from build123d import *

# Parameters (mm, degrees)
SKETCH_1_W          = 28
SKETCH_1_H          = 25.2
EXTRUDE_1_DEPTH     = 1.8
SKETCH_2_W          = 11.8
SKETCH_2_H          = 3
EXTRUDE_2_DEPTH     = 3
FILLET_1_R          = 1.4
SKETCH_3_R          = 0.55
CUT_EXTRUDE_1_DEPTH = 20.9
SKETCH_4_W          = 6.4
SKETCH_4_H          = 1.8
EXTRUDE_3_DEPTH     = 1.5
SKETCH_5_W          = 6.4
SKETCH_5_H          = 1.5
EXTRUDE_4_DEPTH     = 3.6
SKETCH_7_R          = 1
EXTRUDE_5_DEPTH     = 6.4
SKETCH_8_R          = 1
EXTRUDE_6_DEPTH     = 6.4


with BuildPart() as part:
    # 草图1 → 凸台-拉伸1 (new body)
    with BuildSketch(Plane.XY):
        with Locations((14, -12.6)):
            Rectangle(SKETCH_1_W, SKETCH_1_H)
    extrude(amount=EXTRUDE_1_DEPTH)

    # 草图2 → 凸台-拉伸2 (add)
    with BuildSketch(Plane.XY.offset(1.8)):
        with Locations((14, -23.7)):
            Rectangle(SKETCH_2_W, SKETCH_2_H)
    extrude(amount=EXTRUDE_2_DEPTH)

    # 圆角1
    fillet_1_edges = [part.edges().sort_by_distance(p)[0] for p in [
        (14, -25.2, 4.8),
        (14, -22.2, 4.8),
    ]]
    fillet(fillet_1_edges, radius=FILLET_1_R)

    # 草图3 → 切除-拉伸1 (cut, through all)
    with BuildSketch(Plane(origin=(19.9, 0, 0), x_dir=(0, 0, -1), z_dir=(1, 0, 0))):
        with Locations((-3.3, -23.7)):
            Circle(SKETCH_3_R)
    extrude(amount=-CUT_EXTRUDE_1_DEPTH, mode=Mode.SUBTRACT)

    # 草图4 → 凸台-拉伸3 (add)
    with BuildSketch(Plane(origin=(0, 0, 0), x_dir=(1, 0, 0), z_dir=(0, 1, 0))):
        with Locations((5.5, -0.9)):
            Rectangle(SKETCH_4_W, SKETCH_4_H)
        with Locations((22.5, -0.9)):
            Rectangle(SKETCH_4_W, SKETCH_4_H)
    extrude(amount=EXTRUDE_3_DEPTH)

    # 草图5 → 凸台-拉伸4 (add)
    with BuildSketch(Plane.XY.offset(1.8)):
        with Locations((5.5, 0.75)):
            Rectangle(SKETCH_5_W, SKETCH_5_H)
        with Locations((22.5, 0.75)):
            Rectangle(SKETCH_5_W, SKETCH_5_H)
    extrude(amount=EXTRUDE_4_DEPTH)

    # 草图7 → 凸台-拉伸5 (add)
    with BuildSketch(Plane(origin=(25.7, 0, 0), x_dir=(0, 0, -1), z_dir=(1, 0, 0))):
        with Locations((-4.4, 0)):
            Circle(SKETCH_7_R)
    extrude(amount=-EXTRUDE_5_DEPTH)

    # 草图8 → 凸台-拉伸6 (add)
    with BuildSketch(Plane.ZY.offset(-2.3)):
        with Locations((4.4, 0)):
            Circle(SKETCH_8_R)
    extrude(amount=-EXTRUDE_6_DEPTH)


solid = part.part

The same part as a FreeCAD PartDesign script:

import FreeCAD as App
import Part
import Sketcher


def edges_at(feature, points):
    """Names of the edges that pass closest to the given points."""
    edges = feature.Shape.Edges
    near = lambda p: min(range(len(edges)), key=lambda i: edges[i].distToShape(Part.Vertex(*p))[0])
    return sorted({f"Edge{near(p) + 1}" for p in points})


def add_polygon(sketch, points):
    """Adds a closed chain of lines whose ends are joined by coincident constraints."""
    first, n = sketch.GeometryCount, len(points)
    for a, b in zip(points, points[1:] + points[:1]):
        sketch.addGeometry(Part.LineSegment(App.Vector(*a, 0), App.Vector(*b, 0)), False)
    for i in range(n):
        sketch.addConstraint(Sketcher.Constraint("Coincident", first + i, 2, first + (i + 1) % n, 1))

doc = App.newDocument("Part")
params = doc.addObject("Spreadsheet::Sheet", "Params")
for row, (alias, value) in enumerate([
    ("sketch1_width", "28 mm"),
    ("sketch1_height", "25.2 mm"),
    ("pad1_length", "1.8 mm"),
    ("sketch2_height", "3 mm"),
    ("sketch2_width", "11.8 mm"),
    ("pad2_length", "3 mm"),
    ("fillet_radius", "1.4 mm"),
    ("sketch3_diameter", "1.1 mm"),
    ("sketch4_width", "6.4 mm"),
    ("sketch4_height", "1.8 mm"),
    ("pad3_length", "1.5 mm"),
    ("sketch5_width", "6.4 mm"),
    ("sketch5_height", "1.5 mm"),
    ("pad4_length", "3.6 mm"),
    ("sketch6_diameter", "2 mm"),
    ("pad5_length", "6.4 mm"),
    ("sketch7_diameter", "2 mm"),
    ("pad6_length", "6.4 mm"),
], start=1):
    params.set(f"A{row}", alias)
    params.set(f"B{row}", "=" + value)
    params.setAlias(f"B{row}", alias)

body = doc.addObject("PartDesign::Body", "Body")

# Sketch on XY plane
sketch1 = doc.addObject("Sketcher::SketchObject", "Sketch")
body.addObject(sketch1)
sketch1.AttachmentSupport = (doc.XY_Plane, [""])
sketch1.MapMode = "FlatFace"
add_polygon(sketch1, [(0, 0), (0, -25), (28, -25), (28, 0)])  # lines 0-3
sketch1.addConstraint([
    Sketcher.Constraint("Vertical", 0),
    Sketcher.Constraint("Horizontal", 1),
    Sketcher.Constraint("Vertical", 2),
    Sketcher.Constraint("Horizontal", 3),
    Sketcher.Constraint("Coincident", 3, 2, -1, 1),
    Sketcher.Constraint("DistanceX", 1, 1, 1, 2, 28.0),
    Sketcher.Constraint("DistanceY", 0, 2, 0, 1, 25.2),
])
sketch1.setExpression("Constraints[9]", "Params.sketch1_width")
sketch1.setExpression("Constraints[10]", "Params.sketch1_height")
pad1 = doc.addObject("PartDesign::Pad", "Pad")
body.addObject(pad1)
pad1.Profile = sketch1
pad1.setExpression("Length", "Params.pad1_length")

# Sketch on XY plane
sketch2 = doc.addObject("Sketcher::SketchObject", "Sketch001")
body.addObject(sketch2)
sketch2.AttachmentSupport = (doc.XY_Plane, [""])
sketch2.MapMode = "FlatFace"
sketch2.AttachmentOffset = App.Placement(App.Vector(0, 0, 1.8), App.Rotation())
add_polygon(sketch2, [(8.1, -22.2), (8.1, -25.2), (19.9, -25.2), (19.9, -22.2)])  # lines 0-3
sketch2.addConstraint([
    Sketcher.Constraint("Vertical", 0),
    Sketcher.Constraint("Horizontal", 1),
    Sketcher.Constraint("Vertical", 2),
    Sketcher.Constraint("Horizontal", 3),
    Sketcher.Constraint("DistanceY", 0, 2, 0, 1, 3.0),
    Sketcher.Constraint("DistanceX", 1, 1, 1, 2, 11.8),
    Sketcher.Constraint("DistanceX", -1, 1, 0, 2, 8.1),
    Sketcher.Constraint("DistanceY", 0, 2, -1, 1, 25.2),
])
sketch2.setExpression("Constraints[8]", "Params.sketch2_height")
sketch2.setExpression("Constraints[9]", "Params.sketch2_width")
pad2 = doc.addObject("PartDesign::Pad", "Pad001")
body.addObject(pad2)
pad2.Profile = sketch2
pad2.setExpression("Length", "Params.pad2_length")
doc.recompute()

fillet = doc.addObject("PartDesign::Fillet", "Fillet")
body.addObject(fillet)
fillet.Base = (pad2, edges_at(pad2, [(14, -25.2, 4.8), (14, -22.2, 4.8)]))
fillet.setExpression("Radius", "Params.fillet_radius")

# Sketch on YZ plane
sketch3 = doc.addObject("Sketcher::SketchObject", "Sketch002")
body.addObject(sketch3)
sketch3.AttachmentSupport = (doc.YZ_Plane, [""])
sketch3.MapMode = "FlatFace"
sketch3.AttachmentOffset = App.Placement(App.Vector(0, 0, 19.9), App.Rotation())
sketch3.addGeometry(Part.Circle(App.Vector(-23.7, 3.3, 0), App.Vector(0, 0, 1), 0.6), False)
sketch3.addConstraint([
    Sketcher.Constraint("Diameter", 0, 1.1),
    Sketcher.Constraint("DistanceX", 0, 3, -1, 1, 23.7),
    Sketcher.Constraint("DistanceY", -1, 1, 0, 3, 3.3),
])
sketch3.setExpression("Constraints[0]", "Params.sketch3_diameter")
pocket1 = doc.addObject("PartDesign::Pocket", "Pocket")
body.addObject(pocket1)
pocket1.Profile = sketch3
pocket1.Type = "ThroughAll"

# Sketch on XZ plane
sketch4 = doc.addObject("Sketcher::SketchObject", "Sketch003")
body.addObject(sketch4)
sketch4.AttachmentSupport = (doc.XZ_Plane, [""])
sketch4.MapMode = "FlatFace"
add_polygon(sketch4, [(2.3, 0), (2.3, 1.8), (8.7, 1.8), (8.7, 0)])  # lines 0-3
add_polygon(sketch4, [(19.3, 0), (19.3, 1.8), (25.7, 1.8), (25.7, 0)])  # lines 4-7
sketch4.addConstraint([
    Sketcher.Constraint("Vertical", 0),
    Sketcher.Constraint("Horizontal", 1),
    Sketcher.Constraint("Vertical", 2),
    Sketcher.Constraint("Horizontal", 3),
    Sketcher.Constraint("Vertical", 4),
    Sketcher.Constraint("Horizontal", 5),
    Sketcher.Constraint("Vertical", 6),
    Sketcher.Constraint("Horizontal", 7),
    Sketcher.Constraint("PointOnObject", 2, 2, -1),
    Sketcher.Constraint("PointOnObject", 6, 2, -1),
    Sketcher.Constraint("Horizontal", 1, 2, 4, 2),
    Sketcher.Constraint("Equal", 3, 5),
    Sketcher.Constraint("DistanceX", 1, 1, 1, 2, 6.4),
    Sketcher.Constraint("DistanceY", 0, 1, 0, 2, 1.8),
    Sketcher.Constraint("DistanceX", 0, 2, 4, 2, 17.0),
    Sketcher.Constraint("DistanceX", -1, 1, 0, 2, 2.3),
])
sketch4.setExpression("Constraints[20]", "Params.sketch4_width")
sketch4.setExpression("Constraints[21]", "Params.sketch4_height")
pad3 = doc.addObject("PartDesign::Pad", "Pad002")
body.addObject(pad3)
pad3.Profile = sketch4
pad3.setExpression("Length", "Params.pad3_length")
pad3.Reversed = True

# Sketch on XY plane
sketch5 = doc.addObject("Sketcher::SketchObject", "Sketch004")
body.addObject(sketch5)
sketch5.AttachmentSupport = (doc.XY_Plane, [""])
sketch5.MapMode = "FlatFace"
sketch5.AttachmentOffset = App.Placement(App.Vector(0, 0, 1.8), App.Rotation())
add_polygon(sketch5, [(2.3, 1.5), (2.3, 0), (8.7, 0), (8.7, 1.5)])  # lines 0-3
add_polygon(sketch5, [(19.3, 1.5), (19.3, 0), (25.7, 0), (25.7, 1.5)])  # lines 4-7
sketch5.addConstraint([
    Sketcher.Constraint("Vertical", 0),
    Sketcher.Constraint("Horizontal", 1),
    Sketcher.Constraint("Vertical", 2),
    Sketcher.Constraint("Horizontal", 3),
    Sketcher.Constraint("Vertical", 4),
    Sketcher.Constraint("Horizontal", 5),
    Sketcher.Constraint("Vertical", 6),
    Sketcher.Constraint("Horizontal", 7),
    Sketcher.Constraint("PointOnObject", 0, 2, -1),
    Sketcher.Constraint("PointOnObject", 4, 2, -1),
    Sketcher.Constraint("Horizontal", 3, 2, 6, 2),
    Sketcher.Constraint("Equal", 3, 5),
    Sketcher.Constraint("DistanceX", 1, 1, 1, 2, 6.4),
    Sketcher.Constraint("DistanceY", 0, 2, 0, 1, 1.5),
    Sketcher.Constraint("DistanceX", 0, 2, 4, 2, 17.0),
    Sketcher.Constraint("DistanceX", -1, 1, 0, 2, 2.3),
])
sketch5.setExpression("Constraints[20]", "Params.sketch5_width")
sketch5.setExpression("Constraints[21]", "Params.sketch5_height")
pad4 = doc.addObject("PartDesign::Pad", "Pad003")
body.addObject(pad4)
pad4.Profile = sketch5
pad4.setExpression("Length", "Params.pad4_length")

# Sketch on YZ plane
sketch6 = doc.addObject("Sketcher::SketchObject", "Sketch005")
body.addObject(sketch6)
sketch6.AttachmentSupport = (doc.YZ_Plane, [""])
sketch6.MapMode = "FlatFace"
sketch6.AttachmentOffset = App.Placement(App.Vector(0, 0, 25.7), App.Rotation())
sketch6.addGeometry(Part.Circle(App.Vector(0, 4.4, 0), App.Vector(0, 0, 1), 1), False)
sketch6.addConstraint([
    Sketcher.Constraint("PointOnObject", 0, 3, -2),
    Sketcher.Constraint("Diameter", 0, 2.0),
    Sketcher.Constraint("DistanceY", -1, 1, 0, 3, 4.4),
])
sketch6.setExpression("Constraints[1]", "Params.sketch6_diameter")
pad5 = doc.addObject("PartDesign::Pad", "Pad004")
body.addObject(pad5)
pad5.Profile = sketch6
pad5.setExpression("Length", "Params.pad5_length")
pad5.Reversed = True

# Sketch on YZ plane
sketch7 = doc.addObject("Sketcher::SketchObject", "Sketch006")
body.addObject(sketch7)
sketch7.AttachmentSupport = (doc.YZ_Plane, [""])
sketch7.MapMode = "FlatFace"
sketch7.AttachmentOffset = App.Placement(App.Vector(0, 0, 2.3), App.Rotation())
sketch7.addGeometry(Part.Circle(App.Vector(0, 4.4, 0), App.Vector(0, 0, 1), 1), False)
sketch7.addConstraint([
    Sketcher.Constraint("PointOnObject", 0, 3, -2),
    Sketcher.Constraint("Diameter", 0, 2.0),
    Sketcher.Constraint("DistanceY", -1, 1, 0, 3, 4.4),
])
sketch7.setExpression("Constraints[1]", "Params.sketch7_diameter")
pad6 = doc.addObject("PartDesign::Pad", "Pad005")
body.addObject(pad6)
pad6.Profile = sketch7
pad6.setExpression("Length", "Params.pad6_length")

doc.recompute()
